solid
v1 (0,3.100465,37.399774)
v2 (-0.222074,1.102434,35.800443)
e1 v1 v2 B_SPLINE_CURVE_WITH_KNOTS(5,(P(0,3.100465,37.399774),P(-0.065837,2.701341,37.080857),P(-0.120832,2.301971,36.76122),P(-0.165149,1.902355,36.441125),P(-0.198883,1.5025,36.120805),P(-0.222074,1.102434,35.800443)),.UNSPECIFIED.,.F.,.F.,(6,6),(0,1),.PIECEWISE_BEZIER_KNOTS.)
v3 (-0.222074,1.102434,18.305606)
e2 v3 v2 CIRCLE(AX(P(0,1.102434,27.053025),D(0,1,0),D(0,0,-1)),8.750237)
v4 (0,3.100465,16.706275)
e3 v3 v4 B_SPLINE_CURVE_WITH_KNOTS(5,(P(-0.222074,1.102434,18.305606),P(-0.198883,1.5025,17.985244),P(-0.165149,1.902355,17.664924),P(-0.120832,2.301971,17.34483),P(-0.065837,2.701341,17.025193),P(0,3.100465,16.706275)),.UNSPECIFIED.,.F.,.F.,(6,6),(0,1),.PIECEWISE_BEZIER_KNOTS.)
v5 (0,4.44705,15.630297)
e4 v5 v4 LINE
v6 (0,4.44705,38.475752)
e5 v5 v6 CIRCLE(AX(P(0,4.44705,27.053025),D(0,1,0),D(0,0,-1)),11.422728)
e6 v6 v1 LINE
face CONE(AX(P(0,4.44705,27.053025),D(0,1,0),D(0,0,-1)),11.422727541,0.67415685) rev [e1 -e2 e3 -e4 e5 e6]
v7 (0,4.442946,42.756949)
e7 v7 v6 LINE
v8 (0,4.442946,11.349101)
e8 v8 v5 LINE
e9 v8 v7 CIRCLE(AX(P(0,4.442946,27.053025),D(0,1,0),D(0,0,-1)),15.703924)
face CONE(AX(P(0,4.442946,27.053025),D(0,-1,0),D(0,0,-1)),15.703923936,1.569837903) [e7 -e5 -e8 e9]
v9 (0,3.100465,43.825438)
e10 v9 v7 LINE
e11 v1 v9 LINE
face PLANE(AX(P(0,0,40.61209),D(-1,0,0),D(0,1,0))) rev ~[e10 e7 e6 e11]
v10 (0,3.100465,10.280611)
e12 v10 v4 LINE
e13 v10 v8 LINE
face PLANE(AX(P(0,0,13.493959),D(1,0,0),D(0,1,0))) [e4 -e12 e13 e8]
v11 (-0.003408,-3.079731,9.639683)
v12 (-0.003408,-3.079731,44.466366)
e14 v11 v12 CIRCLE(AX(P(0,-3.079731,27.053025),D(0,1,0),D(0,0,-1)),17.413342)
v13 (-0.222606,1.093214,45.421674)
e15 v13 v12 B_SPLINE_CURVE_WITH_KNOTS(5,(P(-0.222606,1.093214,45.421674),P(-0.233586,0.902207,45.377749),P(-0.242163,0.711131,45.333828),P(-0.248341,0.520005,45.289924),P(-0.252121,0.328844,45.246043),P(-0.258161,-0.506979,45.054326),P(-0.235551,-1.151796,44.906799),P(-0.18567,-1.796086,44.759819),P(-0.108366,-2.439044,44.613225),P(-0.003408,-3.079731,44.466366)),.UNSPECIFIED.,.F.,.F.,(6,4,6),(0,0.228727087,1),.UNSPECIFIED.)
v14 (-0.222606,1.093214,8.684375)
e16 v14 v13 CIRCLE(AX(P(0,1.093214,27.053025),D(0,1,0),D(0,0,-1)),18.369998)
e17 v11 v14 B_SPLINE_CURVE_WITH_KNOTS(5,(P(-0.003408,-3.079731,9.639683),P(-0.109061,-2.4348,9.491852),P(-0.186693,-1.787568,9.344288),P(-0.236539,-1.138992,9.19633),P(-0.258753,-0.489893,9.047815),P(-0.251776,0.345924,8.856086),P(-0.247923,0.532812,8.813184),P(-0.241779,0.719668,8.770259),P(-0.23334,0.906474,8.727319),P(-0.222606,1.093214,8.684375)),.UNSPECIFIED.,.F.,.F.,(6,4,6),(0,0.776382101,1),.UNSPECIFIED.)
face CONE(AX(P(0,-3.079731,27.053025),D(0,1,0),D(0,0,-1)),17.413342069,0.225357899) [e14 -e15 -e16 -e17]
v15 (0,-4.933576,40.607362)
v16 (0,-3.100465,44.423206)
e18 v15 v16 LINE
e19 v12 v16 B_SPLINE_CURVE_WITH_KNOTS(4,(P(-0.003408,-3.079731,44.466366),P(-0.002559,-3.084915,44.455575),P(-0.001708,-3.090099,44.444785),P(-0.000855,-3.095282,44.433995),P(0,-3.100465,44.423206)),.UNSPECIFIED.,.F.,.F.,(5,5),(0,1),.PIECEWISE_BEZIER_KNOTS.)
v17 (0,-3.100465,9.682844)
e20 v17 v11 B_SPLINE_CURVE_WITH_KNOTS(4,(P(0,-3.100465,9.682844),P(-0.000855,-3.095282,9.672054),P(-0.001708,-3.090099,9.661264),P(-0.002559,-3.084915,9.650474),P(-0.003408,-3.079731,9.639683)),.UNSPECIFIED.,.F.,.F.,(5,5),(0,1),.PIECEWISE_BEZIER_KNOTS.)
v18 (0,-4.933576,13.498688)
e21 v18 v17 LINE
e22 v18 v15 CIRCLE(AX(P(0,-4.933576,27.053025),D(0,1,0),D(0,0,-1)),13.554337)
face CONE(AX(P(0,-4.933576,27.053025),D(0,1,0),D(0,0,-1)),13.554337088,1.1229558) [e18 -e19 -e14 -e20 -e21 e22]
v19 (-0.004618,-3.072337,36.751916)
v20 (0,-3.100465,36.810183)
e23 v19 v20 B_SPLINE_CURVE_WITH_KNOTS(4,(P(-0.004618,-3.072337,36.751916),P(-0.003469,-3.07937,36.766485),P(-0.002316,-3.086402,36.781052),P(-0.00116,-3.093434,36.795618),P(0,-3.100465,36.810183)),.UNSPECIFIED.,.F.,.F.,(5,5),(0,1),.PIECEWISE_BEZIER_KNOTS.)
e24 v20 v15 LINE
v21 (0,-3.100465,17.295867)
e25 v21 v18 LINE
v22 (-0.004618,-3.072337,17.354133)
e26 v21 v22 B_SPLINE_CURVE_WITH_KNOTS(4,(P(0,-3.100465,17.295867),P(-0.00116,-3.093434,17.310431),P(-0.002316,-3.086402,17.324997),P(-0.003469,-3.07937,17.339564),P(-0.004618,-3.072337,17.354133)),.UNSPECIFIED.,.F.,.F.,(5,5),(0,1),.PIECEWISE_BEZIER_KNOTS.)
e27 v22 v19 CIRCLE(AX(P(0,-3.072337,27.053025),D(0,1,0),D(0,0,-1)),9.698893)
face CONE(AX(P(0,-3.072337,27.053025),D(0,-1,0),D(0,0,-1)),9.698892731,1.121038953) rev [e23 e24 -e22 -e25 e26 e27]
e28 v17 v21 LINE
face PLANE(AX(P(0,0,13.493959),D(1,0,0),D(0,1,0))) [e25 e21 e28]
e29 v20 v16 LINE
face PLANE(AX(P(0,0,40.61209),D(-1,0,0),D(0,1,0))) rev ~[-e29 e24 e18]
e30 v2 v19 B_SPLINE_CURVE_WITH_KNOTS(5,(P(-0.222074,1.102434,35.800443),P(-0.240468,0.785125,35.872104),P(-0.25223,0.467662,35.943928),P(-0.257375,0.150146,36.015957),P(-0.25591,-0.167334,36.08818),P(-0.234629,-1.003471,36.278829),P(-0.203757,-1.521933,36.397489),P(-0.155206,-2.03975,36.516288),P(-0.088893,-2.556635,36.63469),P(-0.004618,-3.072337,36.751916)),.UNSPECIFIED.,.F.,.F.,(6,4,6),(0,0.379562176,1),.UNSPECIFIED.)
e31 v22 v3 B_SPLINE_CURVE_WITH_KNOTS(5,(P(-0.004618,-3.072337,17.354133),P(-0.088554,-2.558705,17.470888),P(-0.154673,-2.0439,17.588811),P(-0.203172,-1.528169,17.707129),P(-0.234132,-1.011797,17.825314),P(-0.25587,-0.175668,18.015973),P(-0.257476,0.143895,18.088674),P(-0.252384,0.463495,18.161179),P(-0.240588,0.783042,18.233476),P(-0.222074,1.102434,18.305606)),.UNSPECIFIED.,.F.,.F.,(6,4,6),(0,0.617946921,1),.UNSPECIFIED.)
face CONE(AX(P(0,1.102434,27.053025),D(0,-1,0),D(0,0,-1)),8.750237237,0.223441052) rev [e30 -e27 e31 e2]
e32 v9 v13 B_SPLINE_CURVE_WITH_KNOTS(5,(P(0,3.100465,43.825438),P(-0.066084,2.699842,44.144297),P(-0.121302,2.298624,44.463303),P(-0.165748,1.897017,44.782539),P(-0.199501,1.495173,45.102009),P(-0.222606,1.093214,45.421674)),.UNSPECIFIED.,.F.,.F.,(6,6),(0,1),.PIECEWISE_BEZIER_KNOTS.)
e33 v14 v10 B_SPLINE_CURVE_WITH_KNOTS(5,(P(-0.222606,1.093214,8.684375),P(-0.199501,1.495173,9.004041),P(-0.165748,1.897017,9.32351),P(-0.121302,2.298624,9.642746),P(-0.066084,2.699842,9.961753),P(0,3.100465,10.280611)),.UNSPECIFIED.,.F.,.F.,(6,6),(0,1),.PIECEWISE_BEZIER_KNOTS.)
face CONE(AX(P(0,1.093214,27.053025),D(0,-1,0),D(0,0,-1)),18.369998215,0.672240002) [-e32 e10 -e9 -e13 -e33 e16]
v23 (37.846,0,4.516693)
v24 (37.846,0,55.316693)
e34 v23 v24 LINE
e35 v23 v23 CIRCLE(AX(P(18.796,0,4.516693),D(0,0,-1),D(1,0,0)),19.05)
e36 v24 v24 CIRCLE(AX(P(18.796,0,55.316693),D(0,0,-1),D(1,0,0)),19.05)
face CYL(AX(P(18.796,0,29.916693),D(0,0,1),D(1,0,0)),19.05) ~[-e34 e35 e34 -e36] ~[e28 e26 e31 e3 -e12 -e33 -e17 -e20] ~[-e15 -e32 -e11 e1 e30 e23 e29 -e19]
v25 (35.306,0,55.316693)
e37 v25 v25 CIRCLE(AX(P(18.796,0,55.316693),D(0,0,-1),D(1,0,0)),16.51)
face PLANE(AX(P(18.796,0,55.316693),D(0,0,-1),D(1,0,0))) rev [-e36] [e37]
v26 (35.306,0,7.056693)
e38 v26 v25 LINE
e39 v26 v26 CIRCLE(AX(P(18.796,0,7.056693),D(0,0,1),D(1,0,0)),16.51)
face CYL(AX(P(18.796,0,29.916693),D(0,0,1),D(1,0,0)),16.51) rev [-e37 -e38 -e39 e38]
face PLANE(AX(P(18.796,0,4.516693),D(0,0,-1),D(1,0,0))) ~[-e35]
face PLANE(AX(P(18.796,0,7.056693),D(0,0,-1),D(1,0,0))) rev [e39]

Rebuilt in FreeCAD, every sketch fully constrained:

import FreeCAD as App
import Part
import Sketcher

V = App.Vector
Q = App.Units.Quantity


def faces_at(feature, points):
    """Names of the faces that lie closest to the given points."""
    faces = feature.Shape.Faces
    near = lambda p: min(range(len(faces)), key=lambda i: faces[i].distToShape(Part.Vertex(*p))[0])
    return sorted({f"Face{near(p) + 1}" for p in points})

doc = App.newDocument("Part")
body = doc.addObject("PartDesign::Body", "Body")

sketch1 = body.newObject("Sketcher::SketchObject", "Sketch")
sketch1.AttachmentSupport = (doc.getObject("XZ_Plane"), [""])
sketch1.MapMode = "FlatFace"
sketch1.addGeometry([
    Part.LineSegment(V(18.796, 55.316693, 0), V(18.796, 4.516693, 0)),
    Part.LineSegment(V(18.796, 4.516693, 0), V(37.846, 4.516693, 0)),
    Part.LineSegment(V(37.846, 4.516693, 0), V(37.846, 55.316693, 0)),
    Part.LineSegment(V(37.846, 55.316693, 0), V(18.796, 55.316693, 0)),
], False)
sketch1.addGeometry(Part.LineSegment(V(18.796, 55.316693, 0), V(18.796, 4.516693, 0)), True)
sketch1.addConstraint([
    Sketcher.Constraint("Coincident", 0, 2, 1, 1),
    Sketcher.Constraint("Coincident", 1, 2, 2, 1),
    Sketcher.Constraint("Coincident", 2, 2, 3, 1),
    Sketcher.Constraint("Coincident", 3, 2, 0, 1),
    Sketcher.Constraint("Vertical", 0),
    Sketcher.Constraint("Horizontal", 1),
    Sketcher.Constraint("Vertical", 2),
    Sketcher.Constraint("Horizontal", 3),
    Sketcher.Constraint("Vertical", 4),
    Sketcher.Constraint("Coincident", 4, 1, 3, 2),
    Sketcher.Constraint("Horizontal", 1, 2, 4, 2),
    Sketcher.Constraint("DistanceY", 0, 2, 0, 1, Q("2 in")),
    Sketcher.Constraint("DistanceX", 1, 1, 1, 2, Q("0.75 in")),
    Sketcher.Constraint("DistanceX", -1, 1, 0, 2, Q("0.74 in")),
    Sketcher.Constraint("DistanceY", -1, 1, 0, 2, Q("4.516693 mm")),
])
revolution = body.newObject("PartDesign::Revolution", "Revolution")
revolution.Profile = sketch1
revolution.ReferenceAxis = (sketch1, ["Axis0"])
revolution.Angle = 360
doc.recompute()

thickness = body.newObject("PartDesign::Thickness", "Thickness")
thickness.Base = (revolution, faces_at(revolution, [(18.796, 0, 55.317)]))
thickness.Value = Q("0.1 in")
thickness.Reversed = True
thickness.Join = "Arc"

sketch2 = body.newObject("Sketcher::SketchObject", "Sketch001")
sketch2.AttachmentSupport = (doc.getObject("YZ_Plane"), [""])
sketch2.MapMode = "FlatFace"
sketch2.addGeometry([
    Part.LineSegment(V(-4.933576, 13.498688, 0), V(-3.079731, 9.639683, 0)),
    Part.LineSegment(V(-3.079731, 9.639683, 0), V(1.093214, 8.683026, 0)),
    Part.LineSegment(V(1.093214, 8.683026, 0), V(4.442946, 11.349101, 0)),
    Part.LineSegment(V(4.442946, 11.349101, 0), V(4.44705, 15.630297, 0)),
    Part.LineSegment(V(4.44705, 15.630297, 0), V(1.102434, 18.302787, 0)),
    Part.LineSegment(V(1.102434, 18.302787, 0), V(-3.072337, 17.354132, 0)),
    Part.LineSegment(V(-3.072337, 17.354132, 0), V(-4.933576, 13.498688, 0)),
], False)
sketch2.addGeometry(Part.LineSegment(V(-4.933576, 27.053025, 0), V(4.44705, 27.053025, 0)), True)
sketch2.addConstraint([
    Sketcher.Constraint("Coincident", 0, 2, 1, 1),
    Sketcher.Constraint("Coincident", 1, 2, 2, 1),
    Sketcher.Constraint("Coincident", 2, 2, 3, 1),
    Sketcher.Constraint("Coincident", 3, 2, 4, 1),
    Sketcher.Constraint("Coincident", 4, 2, 5, 1),
    Sketcher.Constraint("Coincident", 5, 2, 6, 1),
    Sketcher.Constraint("Coincident", 6, 2, 0, 1),
    Sketcher.Constraint("Horizontal", 7),
    Sketcher.Constraint("Vertical", 6, 2, 7, 1),
    Sketcher.Constraint("Vertical", 3, 2, 7, 2),
    Sketcher.Constraint("Equal", 0, 1),
    Sketcher.Constraint("Equal", 1, 2),
    Sketcher.Constraint("Equal", 2, 3),
    Sketcher.Constraint("Equal", 3, 4),
    Sketcher.Constraint("Equal", 4, 5),
    Sketcher.Constraint("Equal", 5, 6),
    Sketcher.Constraint("DistanceY", 0, 2, 2, 2, Q("0.0672999 in")),
    Sketcher.Constraint("Distance", 0, Q("4.281198 mm")),
    Sketcher.Constraint("DistanceY", -1, 1, 2, 2, Q("11.349101 mm")),
    Sketcher.Constraint("DistanceY", 6, 2, 4, 2, Q("4.8041 mm")),
    Sketcher.Constraint("DistanceX", 7, 1, 7, 2, Q("9.380625 mm")),
    Sketcher.Constraint("DistanceX", 0, 2, -1, 1, Q("3.079731 mm")),
    Sketcher.Constraint("DistanceX", -1, 1, 3, 2, Q("4.44705 mm")),
    Sketcher.Constraint("DistanceY", 1, 2, 3, 2, Q("6.947271 mm")),
    Sketcher.Constraint("DistanceY", -1, 1, 7, 1, Q("27.053025 mm")),
])
revolution2 = body.newObject("PartDesign::Revolution", "Revolution001")
revolution2.Profile = sketch2
revolution2.ReferenceAxis = (sketch2, ["Axis0"])
revolution2.Angle = 180

doc.recompute()
